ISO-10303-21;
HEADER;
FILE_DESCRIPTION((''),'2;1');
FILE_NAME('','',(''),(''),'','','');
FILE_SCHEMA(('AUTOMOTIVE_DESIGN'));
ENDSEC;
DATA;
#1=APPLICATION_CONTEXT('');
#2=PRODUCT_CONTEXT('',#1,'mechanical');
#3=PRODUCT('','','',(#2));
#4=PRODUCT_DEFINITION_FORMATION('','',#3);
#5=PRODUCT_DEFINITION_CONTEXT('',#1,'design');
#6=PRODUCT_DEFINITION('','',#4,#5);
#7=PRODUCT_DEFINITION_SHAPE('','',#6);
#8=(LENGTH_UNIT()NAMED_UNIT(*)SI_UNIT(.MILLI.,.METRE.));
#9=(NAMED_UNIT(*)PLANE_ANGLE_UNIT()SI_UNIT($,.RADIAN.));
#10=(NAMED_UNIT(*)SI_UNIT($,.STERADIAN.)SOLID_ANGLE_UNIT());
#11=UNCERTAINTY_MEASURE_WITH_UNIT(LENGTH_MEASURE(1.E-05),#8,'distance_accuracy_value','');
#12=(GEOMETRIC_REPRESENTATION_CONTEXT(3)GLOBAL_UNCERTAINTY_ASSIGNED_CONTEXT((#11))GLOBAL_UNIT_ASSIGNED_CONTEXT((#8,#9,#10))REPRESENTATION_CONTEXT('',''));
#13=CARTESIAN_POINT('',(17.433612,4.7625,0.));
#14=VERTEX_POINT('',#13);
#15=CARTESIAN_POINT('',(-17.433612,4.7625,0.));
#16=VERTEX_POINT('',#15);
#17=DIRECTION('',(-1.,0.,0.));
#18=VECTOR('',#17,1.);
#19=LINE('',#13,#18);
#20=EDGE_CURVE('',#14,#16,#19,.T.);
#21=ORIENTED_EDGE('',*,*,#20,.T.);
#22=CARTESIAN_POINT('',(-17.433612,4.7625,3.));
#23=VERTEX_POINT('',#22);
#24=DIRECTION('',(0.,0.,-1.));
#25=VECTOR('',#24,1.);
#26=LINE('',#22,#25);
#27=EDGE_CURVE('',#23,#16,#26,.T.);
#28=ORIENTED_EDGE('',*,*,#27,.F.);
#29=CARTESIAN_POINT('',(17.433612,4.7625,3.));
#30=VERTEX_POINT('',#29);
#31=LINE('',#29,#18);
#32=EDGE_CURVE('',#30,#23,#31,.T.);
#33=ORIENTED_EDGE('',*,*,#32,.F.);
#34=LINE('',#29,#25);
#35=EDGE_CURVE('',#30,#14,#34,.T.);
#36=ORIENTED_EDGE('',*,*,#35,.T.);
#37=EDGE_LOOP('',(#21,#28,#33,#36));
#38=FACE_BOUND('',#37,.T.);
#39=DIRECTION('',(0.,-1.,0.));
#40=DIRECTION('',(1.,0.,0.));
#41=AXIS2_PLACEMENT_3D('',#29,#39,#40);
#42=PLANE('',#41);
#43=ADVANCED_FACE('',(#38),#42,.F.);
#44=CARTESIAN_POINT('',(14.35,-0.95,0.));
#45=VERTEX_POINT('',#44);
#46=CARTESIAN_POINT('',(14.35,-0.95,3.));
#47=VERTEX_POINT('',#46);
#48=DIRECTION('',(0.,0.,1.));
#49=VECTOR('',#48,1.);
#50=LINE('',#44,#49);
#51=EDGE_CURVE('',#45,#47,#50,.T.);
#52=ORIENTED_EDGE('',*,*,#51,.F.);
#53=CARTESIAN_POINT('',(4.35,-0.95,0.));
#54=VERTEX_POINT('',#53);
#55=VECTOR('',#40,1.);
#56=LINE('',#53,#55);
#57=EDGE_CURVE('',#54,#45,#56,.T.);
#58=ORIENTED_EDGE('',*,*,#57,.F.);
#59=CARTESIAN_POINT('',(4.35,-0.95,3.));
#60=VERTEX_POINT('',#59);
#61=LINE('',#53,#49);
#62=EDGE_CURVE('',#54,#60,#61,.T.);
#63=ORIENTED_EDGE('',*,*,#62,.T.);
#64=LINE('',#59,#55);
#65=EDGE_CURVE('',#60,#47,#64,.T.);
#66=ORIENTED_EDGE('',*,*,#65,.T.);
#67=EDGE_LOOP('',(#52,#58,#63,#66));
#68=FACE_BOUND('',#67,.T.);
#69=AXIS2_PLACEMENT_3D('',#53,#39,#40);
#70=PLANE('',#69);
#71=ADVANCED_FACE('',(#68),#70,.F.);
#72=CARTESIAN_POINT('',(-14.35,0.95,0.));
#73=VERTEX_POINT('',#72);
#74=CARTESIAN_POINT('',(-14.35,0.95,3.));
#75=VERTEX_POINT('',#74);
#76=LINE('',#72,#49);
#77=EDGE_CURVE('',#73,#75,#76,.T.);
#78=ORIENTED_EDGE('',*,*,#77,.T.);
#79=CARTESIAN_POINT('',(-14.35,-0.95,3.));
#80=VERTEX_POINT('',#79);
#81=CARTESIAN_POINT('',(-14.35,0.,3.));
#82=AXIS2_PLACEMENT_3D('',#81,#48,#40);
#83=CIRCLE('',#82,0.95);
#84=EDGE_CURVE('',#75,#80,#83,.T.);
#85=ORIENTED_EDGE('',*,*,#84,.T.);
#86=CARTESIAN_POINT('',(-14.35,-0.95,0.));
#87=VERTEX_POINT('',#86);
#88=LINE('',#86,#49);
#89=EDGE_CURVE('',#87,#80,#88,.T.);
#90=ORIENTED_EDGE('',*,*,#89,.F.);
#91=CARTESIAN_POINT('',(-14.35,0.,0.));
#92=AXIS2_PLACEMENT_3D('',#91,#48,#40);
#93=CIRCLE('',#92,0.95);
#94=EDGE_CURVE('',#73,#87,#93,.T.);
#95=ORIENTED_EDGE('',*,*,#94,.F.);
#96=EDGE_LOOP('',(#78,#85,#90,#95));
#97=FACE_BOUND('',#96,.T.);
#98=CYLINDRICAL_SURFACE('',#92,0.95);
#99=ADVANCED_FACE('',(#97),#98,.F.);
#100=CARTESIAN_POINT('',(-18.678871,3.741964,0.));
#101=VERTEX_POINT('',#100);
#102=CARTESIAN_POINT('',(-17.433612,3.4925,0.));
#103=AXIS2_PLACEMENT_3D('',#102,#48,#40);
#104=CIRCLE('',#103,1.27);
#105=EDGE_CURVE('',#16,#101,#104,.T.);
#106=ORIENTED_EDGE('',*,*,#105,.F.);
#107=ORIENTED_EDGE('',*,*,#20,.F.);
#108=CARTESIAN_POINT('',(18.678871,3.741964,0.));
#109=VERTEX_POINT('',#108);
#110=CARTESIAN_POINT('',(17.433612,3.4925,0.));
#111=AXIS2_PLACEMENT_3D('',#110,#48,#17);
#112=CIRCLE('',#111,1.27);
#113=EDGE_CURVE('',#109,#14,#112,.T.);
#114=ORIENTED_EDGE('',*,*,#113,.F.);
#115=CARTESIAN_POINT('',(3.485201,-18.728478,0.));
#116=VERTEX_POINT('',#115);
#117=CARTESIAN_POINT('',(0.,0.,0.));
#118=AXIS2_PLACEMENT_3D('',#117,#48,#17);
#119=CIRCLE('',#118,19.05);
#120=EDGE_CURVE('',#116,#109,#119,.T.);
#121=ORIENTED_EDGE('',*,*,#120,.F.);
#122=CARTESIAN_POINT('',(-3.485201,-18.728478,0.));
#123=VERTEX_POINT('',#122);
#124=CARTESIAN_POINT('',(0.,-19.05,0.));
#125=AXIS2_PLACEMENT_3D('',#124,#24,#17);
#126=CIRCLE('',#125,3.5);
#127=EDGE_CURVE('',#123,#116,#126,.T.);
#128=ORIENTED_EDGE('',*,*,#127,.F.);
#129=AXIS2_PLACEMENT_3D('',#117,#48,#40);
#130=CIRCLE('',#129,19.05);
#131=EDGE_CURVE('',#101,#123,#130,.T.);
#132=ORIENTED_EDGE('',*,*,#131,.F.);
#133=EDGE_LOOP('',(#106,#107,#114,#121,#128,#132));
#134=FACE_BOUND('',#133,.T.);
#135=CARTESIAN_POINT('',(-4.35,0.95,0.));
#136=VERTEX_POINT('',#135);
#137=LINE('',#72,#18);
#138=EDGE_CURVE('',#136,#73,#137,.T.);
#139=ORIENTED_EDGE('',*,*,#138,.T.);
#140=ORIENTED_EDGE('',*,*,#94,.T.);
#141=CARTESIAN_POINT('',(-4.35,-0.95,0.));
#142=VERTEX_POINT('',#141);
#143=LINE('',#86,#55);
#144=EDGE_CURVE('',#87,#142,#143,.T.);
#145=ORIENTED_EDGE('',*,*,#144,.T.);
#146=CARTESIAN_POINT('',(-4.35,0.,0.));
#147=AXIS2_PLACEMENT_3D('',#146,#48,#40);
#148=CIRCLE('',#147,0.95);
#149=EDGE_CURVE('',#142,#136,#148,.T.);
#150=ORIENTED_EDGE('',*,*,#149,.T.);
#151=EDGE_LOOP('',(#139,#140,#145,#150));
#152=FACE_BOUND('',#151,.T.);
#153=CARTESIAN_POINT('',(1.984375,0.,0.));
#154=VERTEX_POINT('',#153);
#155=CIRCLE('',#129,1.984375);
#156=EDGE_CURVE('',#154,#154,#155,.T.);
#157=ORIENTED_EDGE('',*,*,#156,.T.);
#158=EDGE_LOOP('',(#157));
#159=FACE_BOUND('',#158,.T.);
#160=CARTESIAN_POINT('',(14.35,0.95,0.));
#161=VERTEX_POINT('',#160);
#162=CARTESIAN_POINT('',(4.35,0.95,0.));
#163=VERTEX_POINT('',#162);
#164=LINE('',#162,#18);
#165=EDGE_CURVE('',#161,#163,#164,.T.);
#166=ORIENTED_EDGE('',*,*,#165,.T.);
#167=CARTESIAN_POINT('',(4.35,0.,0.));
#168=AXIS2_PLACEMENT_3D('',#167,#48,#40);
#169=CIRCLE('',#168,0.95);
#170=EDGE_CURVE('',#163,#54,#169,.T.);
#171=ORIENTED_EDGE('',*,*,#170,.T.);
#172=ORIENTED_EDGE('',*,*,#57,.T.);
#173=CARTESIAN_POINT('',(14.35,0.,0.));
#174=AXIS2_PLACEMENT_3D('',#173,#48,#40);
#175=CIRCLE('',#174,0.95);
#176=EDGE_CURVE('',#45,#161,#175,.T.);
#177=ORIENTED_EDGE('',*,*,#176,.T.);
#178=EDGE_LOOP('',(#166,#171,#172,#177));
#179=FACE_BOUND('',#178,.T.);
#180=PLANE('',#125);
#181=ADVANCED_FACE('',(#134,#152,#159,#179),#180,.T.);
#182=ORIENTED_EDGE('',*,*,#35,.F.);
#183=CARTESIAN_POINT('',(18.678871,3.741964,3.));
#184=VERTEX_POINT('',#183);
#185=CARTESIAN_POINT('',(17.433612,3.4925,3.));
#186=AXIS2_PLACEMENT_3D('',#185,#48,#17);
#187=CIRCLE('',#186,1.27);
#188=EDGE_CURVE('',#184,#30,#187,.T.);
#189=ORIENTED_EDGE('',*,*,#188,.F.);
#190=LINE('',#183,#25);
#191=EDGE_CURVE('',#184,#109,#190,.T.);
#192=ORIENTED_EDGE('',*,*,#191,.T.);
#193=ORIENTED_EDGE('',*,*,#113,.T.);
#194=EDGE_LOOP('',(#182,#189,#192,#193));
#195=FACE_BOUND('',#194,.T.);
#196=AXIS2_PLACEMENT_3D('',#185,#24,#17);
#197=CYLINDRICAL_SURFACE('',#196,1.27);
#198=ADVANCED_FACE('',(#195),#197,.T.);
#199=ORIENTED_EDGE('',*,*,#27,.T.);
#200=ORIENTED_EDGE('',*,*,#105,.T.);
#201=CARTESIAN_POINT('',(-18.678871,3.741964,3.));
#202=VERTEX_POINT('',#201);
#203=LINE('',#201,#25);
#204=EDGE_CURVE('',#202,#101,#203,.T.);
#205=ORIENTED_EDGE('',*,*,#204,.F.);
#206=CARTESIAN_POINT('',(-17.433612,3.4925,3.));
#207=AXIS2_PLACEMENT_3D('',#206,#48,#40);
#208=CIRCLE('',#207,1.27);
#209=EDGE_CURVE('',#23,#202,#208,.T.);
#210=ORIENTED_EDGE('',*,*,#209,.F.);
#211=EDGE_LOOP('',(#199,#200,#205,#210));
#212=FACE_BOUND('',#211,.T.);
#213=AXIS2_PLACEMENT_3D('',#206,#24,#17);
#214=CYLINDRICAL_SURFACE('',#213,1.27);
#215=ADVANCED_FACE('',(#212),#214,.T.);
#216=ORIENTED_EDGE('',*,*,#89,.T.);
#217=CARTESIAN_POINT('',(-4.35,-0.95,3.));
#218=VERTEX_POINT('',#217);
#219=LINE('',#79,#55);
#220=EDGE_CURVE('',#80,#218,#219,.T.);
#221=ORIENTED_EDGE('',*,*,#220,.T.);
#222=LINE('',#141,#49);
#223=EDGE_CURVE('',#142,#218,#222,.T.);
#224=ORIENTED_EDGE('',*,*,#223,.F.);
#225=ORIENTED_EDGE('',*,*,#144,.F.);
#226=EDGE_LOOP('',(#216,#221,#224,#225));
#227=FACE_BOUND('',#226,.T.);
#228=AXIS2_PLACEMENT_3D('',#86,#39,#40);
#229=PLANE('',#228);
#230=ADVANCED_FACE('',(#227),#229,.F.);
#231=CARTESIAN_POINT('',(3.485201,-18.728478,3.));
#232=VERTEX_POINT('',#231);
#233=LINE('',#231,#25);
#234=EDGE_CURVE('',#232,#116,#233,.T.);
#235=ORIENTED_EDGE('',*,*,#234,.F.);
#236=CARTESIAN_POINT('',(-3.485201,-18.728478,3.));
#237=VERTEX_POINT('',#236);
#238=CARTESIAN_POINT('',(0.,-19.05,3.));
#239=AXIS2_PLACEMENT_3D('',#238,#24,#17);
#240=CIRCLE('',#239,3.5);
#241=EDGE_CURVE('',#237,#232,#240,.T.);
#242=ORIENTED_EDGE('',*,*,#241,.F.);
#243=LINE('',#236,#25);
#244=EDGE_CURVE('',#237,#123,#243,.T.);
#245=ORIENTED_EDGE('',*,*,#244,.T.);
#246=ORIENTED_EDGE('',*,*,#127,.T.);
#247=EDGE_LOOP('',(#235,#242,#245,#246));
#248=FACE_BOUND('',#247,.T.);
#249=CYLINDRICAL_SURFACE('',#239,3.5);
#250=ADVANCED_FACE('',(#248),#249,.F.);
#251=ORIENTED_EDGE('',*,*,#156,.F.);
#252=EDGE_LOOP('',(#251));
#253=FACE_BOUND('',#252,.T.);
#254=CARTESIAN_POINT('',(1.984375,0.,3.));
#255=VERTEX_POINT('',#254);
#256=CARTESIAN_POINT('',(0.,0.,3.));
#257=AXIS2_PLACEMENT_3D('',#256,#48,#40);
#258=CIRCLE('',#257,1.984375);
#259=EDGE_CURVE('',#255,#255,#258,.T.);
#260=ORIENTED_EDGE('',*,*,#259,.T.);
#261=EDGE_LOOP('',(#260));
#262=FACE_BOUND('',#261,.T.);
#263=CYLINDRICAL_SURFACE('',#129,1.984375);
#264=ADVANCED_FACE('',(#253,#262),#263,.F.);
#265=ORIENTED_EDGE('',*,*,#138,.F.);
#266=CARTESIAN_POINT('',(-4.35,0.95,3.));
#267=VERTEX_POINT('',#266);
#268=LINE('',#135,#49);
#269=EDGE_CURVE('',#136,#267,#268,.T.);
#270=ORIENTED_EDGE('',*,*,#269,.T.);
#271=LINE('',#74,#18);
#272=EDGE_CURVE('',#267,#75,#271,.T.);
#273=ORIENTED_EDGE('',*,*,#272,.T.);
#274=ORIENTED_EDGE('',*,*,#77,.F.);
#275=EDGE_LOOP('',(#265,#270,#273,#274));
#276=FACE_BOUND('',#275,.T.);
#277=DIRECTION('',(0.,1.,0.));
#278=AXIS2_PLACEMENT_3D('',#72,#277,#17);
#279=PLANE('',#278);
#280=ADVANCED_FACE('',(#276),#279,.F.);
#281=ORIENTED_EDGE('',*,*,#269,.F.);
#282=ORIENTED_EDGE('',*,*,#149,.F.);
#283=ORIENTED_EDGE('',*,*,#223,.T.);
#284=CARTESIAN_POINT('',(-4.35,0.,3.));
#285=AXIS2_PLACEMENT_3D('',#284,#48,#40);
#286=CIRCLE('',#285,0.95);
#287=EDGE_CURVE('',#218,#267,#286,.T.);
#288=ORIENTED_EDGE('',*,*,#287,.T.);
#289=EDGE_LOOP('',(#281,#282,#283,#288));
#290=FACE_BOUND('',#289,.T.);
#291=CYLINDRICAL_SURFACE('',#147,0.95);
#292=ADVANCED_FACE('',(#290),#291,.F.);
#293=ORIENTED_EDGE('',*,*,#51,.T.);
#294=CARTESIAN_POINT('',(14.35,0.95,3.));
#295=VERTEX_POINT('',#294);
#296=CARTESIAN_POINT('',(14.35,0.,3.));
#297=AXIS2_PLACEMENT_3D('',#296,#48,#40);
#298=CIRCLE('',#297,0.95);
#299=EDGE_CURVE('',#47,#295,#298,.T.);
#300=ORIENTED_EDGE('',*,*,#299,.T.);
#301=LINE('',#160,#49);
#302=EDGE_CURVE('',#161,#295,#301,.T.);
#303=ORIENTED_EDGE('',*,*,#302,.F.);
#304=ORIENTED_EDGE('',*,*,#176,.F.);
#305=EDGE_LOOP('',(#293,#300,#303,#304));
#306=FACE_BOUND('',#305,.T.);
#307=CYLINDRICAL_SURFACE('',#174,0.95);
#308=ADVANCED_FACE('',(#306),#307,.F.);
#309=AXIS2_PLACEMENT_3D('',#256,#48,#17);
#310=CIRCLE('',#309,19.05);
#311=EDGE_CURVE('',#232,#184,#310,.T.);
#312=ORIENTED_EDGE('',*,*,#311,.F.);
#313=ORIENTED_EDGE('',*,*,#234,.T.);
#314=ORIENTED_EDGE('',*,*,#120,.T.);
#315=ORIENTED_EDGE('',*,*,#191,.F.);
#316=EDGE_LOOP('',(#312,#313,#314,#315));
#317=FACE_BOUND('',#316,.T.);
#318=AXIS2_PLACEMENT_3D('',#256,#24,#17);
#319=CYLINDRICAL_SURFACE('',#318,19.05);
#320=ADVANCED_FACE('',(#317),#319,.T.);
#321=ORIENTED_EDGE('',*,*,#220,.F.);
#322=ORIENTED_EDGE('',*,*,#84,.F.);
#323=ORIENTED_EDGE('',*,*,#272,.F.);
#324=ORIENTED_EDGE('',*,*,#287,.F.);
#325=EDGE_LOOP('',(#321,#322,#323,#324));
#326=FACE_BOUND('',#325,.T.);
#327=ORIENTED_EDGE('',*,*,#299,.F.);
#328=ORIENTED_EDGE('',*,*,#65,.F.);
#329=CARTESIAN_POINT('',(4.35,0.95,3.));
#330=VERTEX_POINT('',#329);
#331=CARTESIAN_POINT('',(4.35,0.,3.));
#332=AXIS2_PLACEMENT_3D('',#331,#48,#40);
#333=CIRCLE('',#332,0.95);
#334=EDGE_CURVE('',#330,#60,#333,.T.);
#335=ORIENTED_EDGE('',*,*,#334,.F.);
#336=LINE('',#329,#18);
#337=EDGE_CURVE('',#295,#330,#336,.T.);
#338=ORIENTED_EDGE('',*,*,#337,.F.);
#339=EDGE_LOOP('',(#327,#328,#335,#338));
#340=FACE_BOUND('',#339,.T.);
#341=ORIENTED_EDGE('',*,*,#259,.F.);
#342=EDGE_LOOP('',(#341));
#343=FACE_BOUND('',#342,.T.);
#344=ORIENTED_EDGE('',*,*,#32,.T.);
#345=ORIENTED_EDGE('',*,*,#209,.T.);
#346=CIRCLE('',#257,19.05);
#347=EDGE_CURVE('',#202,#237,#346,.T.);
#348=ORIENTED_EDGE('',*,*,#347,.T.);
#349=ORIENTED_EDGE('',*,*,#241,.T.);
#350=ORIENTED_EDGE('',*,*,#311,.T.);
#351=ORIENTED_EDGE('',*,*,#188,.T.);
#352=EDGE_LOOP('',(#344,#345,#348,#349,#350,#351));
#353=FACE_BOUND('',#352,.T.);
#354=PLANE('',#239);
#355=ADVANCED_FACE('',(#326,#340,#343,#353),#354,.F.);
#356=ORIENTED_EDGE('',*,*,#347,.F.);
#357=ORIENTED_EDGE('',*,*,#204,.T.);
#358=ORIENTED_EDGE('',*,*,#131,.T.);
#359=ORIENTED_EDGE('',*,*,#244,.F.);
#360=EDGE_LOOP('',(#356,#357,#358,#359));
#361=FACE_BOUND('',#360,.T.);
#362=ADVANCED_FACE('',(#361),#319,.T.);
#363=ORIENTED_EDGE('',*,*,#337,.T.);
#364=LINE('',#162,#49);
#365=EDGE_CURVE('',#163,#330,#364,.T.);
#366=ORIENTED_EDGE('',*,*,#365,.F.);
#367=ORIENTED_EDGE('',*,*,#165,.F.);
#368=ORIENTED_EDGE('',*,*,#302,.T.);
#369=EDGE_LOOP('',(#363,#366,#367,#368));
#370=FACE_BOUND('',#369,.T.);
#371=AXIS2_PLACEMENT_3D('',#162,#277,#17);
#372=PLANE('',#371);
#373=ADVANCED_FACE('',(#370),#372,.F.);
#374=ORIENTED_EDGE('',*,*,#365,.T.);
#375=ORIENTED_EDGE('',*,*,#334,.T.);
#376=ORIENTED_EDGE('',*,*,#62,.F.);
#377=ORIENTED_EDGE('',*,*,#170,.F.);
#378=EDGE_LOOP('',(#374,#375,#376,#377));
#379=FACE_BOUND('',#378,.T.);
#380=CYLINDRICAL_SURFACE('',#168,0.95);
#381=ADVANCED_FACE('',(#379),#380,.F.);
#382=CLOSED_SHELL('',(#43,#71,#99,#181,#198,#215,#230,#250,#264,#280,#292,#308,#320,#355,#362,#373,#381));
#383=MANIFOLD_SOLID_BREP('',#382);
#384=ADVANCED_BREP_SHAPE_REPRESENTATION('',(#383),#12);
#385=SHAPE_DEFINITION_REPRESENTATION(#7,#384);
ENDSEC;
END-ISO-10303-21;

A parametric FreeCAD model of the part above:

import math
import FreeCAD as App
import Part
import Sketcher
from FreeCAD import Vector
Q = App.Units.Quantity

doc = App.newDocument("Part")
params = doc.addObject("Spreadsheet::Sheet", "Params")
for row, (alias, value) in enumerate([
    ("sketch1_radius", "3.5 mm"),
    ("sketch1_radius2", "1.27 mm"),
    ("sketch1_radius3", "19.05 mm"),
    ("pad1_length", "3 mm"),
    ("sketch2_width", "10 mm"),
    ("sketch2_radius", "0.95 mm"),
], start=1):
    params.set(f"A{row}", alias)
    params.set(f"B{row}", "=" + value)
    params.setAlias(f"B{row}", alias)

body = doc.addObject("PartDesign::Body", "Body")

sketch1 = doc.addObject("Sketcher::SketchObject", "Sketch")
body.addObject(sketch1)
sketch1.AttachmentSupport = (doc.XY_Plane, [""])
sketch1.MapMode = "FlatFace"
sketch1.addGeometry(Part.LineSegment(Vector(17.4, 4.8, 0), Vector(-17.4, 4.8, 0)), False)
sketch1.addGeometry(Part.ArcOfCircle(Part.Circle(Vector(-17.4, 3.5, 0), Vector(0, 0, 1), 1.3), math.radians(90), math.radians(169)), False)
sketch1.addGeometry(Part.ArcOfCircle(Part.Circle(Vector(0, 0, 0), Vector(0, 0, 1), 19), math.radians(169), math.radians(259)), False)
sketch1.addGeometry(Part.ArcOfCircle(Part.Circle(Vector(0, -19.1, 0), Vector(0, 0, 1), 3.5), math.radians(5), math.radians(175)), False)
sketch1.addGeometry(Part.ArcOfCircle(Part.Circle(Vector(0, 0, 0), Vector(0, 0, 1), 19), math.radians(-79), math.radians(11)), False)
sketch1.addGeometry(Part.ArcOfCircle(Part.Circle(Vector(17.4, 3.5, 0), Vector(0, 0, 1), 1.3), math.radians(11), math.radians(90)), False)
sketch1.addConstraint(Sketcher.Constraint("Tangent", 0, 2, 1, 1))
sketch1.addConstraint(Sketcher.Constraint("Tangent", 1, 2, 2, 1))
sketch1.addConstraint(Sketcher.Constraint("Coincident", 2, 2, 3, 2))
sketch1.addConstraint(Sketcher.Constraint("Coincident", 3, 1, 4, 1))
sketch1.addConstraint(Sketcher.Constraint("Tangent", 4, 2, 5, 1))
sketch1.addConstraint(Sketcher.Constraint("Tangent", 5, 2, 0, 1))
sketch1.addConstraint(Sketcher.Constraint("Horizontal", 0))
sketch1.addConstraint(Sketcher.Constraint("Coincident", 2, 3, -1, 1))
sketch1.addConstraint(Sketcher.Constraint("Coincident", 4, 3, -1, 1))
sketch1.addConstraint(Sketcher.Constraint("Equal", 2, 4))
sketch1.addConstraint(Sketcher.Constraint("Equal", 1, 5))
sketch1.addConstraint(Sketcher.Constraint("PointOnObject", 3, 3, -2))
sketch1.addConstraint(Sketcher.Constraint("Radius", 3, Q("3.5 mm")))
sketch1.addConstraint(Sketcher.Constraint("Radius", 1, Q("1.27 mm")))
sketch1.addConstraint(Sketcher.Constraint("Radius", 2, Q("19.05 mm")))
sketch1.addConstraint(Sketcher.Constraint("DistanceY", 3, 3, -1, 1, Q("19.05 mm")))
sketch1.addConstraint(Sketcher.Constraint("DistanceY", -1, 1, 1, 3, Q("3.4925 mm")))
sketch1.setExpression("Constraints[12]", "Params.sketch1_radius")
sketch1.setExpression("Constraints[13]", "Params.sketch1_radius2")
sketch1.setExpression("Constraints[14]", "Params.sketch1_radius3")
pad1 = doc.addObject("PartDesign::Pad", "Pad")
body.addObject(pad1)
pad1.Profile = sketch1
pad1.setExpression("Length", "Params.pad1_length")

sketch2 = doc.addObject("Sketcher::SketchObject", "Sketch001")
body.addObject(sketch2)
sketch2.AttachmentSupport = (doc.XY_Plane, [""])
sketch2.MapMode = "FlatFace"
sketch2.AttachmentOffset = App.Placement(Vector(0, 0, 3), App.Rotation())
sketch2.addGeometry(Part.Circle(Vector(0, 0, 0), Vector(0, 0, 1), 2), False)
sketch2.addGeometry(Part.LineSegment(Vector(-4.3, 0.9, 0), Vector(-14.4, 0.9, 0)), False)
sketch2.addGeometry(Part.ArcOfCircle(Part.Circle(Vector(-14.4, 0, 0), Vector(0, 0, 1), 0.9), math.radians(90), math.radians(270)), False)
sketch2.addGeometry(Part.LineSegment(Vector(-14.4, -0.9, 0), Vector(-4.3, -0.9, 0)), False)
sketch2.addGeometry(Part.ArcOfCircle(Part.Circle(Vector(-4.3, 0, 0), Vector(0, 0, 1), 0.9), math.radians(-90), math.radians(90)), False)
sketch2.addGeometry(Part.LineSegment(Vector(14.4, 0.9, 0), Vector(4.3, 0.9, 0)), False)
sketch2.addGeometry(Part.ArcOfCircle(Part.Circle(Vector(4.3, 0, 0), Vector(0, 0, 1), 0.9), math.radians(90), math.radians(270)), False)
sketch2.addGeometry(Part.LineSegment(Vector(4.3, -0.9, 0), Vector(14.4, -0.9, 0)), False)
sketch2.addGeometry(Part.ArcOfCircle(Part.Circle(Vector(14.4, 0, 0), Vector(0, 0, 1), 0.9), math.radians(-90), math.radians(90)), False)
sketch2.addConstraint(Sketcher.Constraint("Tangent", 1, 2, 2, 1))
sketch2.addConstraint(Sketcher.Constraint("Tangent", 2, 2, 3, 1))
sketch2.addConstraint(Sketcher.Constraint("Tangent", 3, 2, 4, 1))
sketch2.addConstraint(Sketcher.Constraint("Tangent", 4, 2, 1, 1))
sketch2.addConstraint(Sketcher.Constraint("Tangent", 5, 2, 6, 1))
sketch2.addConstraint(Sketcher.Constraint("Tangent", 6, 2, 7, 1))
sketch2.addConstraint(Sketcher.Constraint("Tangent", 7, 2, 8, 1))
sketch2.addConstraint(Sketcher.Constraint("Tangent", 8, 2, 5, 1))
sketch2.addConstraint(Sketcher.Constraint("Horizontal", 1))
sketch2.addConstraint(Sketcher.Constraint("Horizontal", 3))
sketch2.addConstraint(Sketcher.Constraint("Horizontal", 5))
sketch2.addConstraint(Sketcher.Constraint("Horizontal", 7))
sketch2.addConstraint(Sketcher.Constraint("Coincident", 0, 3, -1, 1))
sketch2.addConstraint(Sketcher.Constraint("Equal", 4, 6))
sketch2.addConstraint(Sketcher.Constraint("Symmetric", 4, 3, 6, 3, -1, 1))
sketch2.addConstraint(Sketcher.Constraint("Symmetric", 2, 3, 8, 3, -2))
sketch2.addConstraint(Sketcher.Constraint("DistanceX", 1, 2, 1, 1, Q("10 mm")))
sketch2.addConstraint(Sketcher.Constraint("Radius", 2, Q("0.95 mm")))
sketch2.addConstraint(Sketcher.Constraint("DistanceX", 4, 3, 6, 3, Q("8.7 mm")))
sketch2.addConstraint(Sketcher.Constraint("Diameter", 0, Q("3.96875 mm")))
sketch2.setExpression("Constraints[16]", "Params.sketch2_width")
sketch2.setExpression("Constraints[17]", "Params.sketch2_radius")
pocket1 = doc.addObject("PartDesign::Pocket", "Pocket")
body.addObject(pocket1)
pocket1.Profile = sketch2
pocket1.Type = "ThroughAll"

doc.recompute()
